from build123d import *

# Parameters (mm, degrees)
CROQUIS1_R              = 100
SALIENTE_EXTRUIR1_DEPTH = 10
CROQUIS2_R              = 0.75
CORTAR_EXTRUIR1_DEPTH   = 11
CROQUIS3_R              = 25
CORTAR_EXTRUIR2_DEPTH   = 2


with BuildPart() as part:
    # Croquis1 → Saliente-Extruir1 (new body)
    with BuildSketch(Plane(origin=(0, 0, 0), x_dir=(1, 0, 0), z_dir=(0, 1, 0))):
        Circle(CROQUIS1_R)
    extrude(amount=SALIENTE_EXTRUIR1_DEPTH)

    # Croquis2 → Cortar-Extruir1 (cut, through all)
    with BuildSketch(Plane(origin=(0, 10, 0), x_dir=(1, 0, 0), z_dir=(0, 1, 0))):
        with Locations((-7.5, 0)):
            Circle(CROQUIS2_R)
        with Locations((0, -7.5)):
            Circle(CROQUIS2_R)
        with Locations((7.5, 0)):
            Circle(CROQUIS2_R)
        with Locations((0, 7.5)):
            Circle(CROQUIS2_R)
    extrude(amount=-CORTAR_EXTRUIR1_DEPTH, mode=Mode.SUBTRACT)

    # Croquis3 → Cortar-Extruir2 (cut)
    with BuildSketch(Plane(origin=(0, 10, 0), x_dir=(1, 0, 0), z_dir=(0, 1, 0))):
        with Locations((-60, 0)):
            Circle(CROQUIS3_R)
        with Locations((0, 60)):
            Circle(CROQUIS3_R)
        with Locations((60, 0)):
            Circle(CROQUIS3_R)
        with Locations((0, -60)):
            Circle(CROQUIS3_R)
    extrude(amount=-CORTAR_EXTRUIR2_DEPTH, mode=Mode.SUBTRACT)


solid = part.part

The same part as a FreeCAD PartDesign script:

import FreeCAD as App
import Part
import Sketcher
from FreeCAD import Vector
Q = App.Units.Quantity

doc = App.newDocument("Part")
params = doc.addObject("Spreadsheet::Sheet", "Params")
for row, (alias, value) in enumerate([
    ("sketch1_diameter", "200 mm"),
    ("pad1_length", "10 mm"),
    ("sketch2_diameter", "1.5 mm"),
    ("sketch3_diameter", "50 mm"),
    ("pocket2_length", "2 mm"),
], start=1):
    params.set(f"A{row}", alias)
    params.set(f"B{row}", "=" + value)
    params.setAlias(f"B{row}", alias)

body = doc.addObject("PartDesign::Body", "Body")

# Sketch on XZ plane
sketch1 = body.newObject("Sketcher::SketchObject", "Sketch")
sketch1.AttachmentSupport = (doc.getObject("XZ_Plane"), [""])
sketch1.MapMode = "FlatFace"
sketch1.addGeometry(Part.Circle(Vector(0, 0, 0), Vector(0, 0, 1), 100), False)
sketch1.addConstraint([
    Sketcher.Constraint("Coincident", 0, 3, -1, 1),
    Sketcher.Constraint("Diameter", 0, Q("200 mm")),
])
sketch1.setExpression("Constraints[1]", "Params.sketch1_diameter")
pad1 = body.newObject("PartDesign::Pad", "Pad")
pad1.Profile = sketch1
pad1.setExpression("Length", "Params.pad1_length")
pad1.Reversed = True

# Sketch on XZ plane
sketch2 = body.newObject("Sketcher::SketchObject", "Sketch001")
sketch2.AttachmentSupport = (doc.getObject("XZ_Plane"), [""])
sketch2.MapMode = "FlatFace"
sketch2.AttachmentOffset = App.Placement(Vector(0, 0, -10), App.Rotation())
sketch2.addGeometry([
    Part.Circle(Vector(-7.5, 0, 0), Vector(0, 0, 1), 0.8),
    Part.Circle(Vector(0, 7.5, 0), Vector(0, 0, 1), 0.8),
    Part.Circle(Vector(7.5, 0, 0), Vector(0, 0, 1), 0.8),
    Part.Circle(Vector(0, -7.5, 0), Vector(0, 0, 1), 0.8),
], False)
sketch2.addConstraint([
    Sketcher.Constraint("Equal", 0, 1),
    Sketcher.Constraint("Equal", 1, 2),
    Sketcher.Constraint("Equal", 2, 3),
    Sketcher.Constraint("Symmetric", 0, 3, 2, 3, -1, 1),
    Sketcher.Constraint("Symmetric", 1, 3, 3, 3, -1, 1),
    Sketcher.Constraint("PointOnObject", 0, 3, -1),
    Sketcher.Constraint("PointOnObject", 1, 3, -2),
    Sketcher.Constraint("Diameter", 0, Q("1.5 mm")),
    Sketcher.Constraint("DistanceX", 0, 3, 2, 3, Q("15 mm")),
    Sketcher.Constraint("DistanceY", 3, 3, 1, 3, Q("15 mm")),
])
sketch2.setExpression("Constraints[7]", "Params.sketch2_diameter")
pocket1 = body.newObject("PartDesign::Pocket", "Pocket")
pocket1.Profile = sketch2
pocket1.Type = "ThroughAll"
pocket1.Reversed = True

# Sketch on XZ plane
sketch3 = body.newObject("Sketcher::SketchObject", "Sketch002")
sketch3.AttachmentSupport = (doc.getObject("XZ_Plane"), [""])
sketch3.MapMode = "FlatFace"
sketch3.AttachmentOffset = App.Placement(Vector(0, 0, -10), App.Rotation())
sketch3.addGeometry([
    Part.Circle(Vector(-60, 0, 0), Vector(0, 0, 1), 25),
    Part.Circle(Vector(0, -60, 0), Vector(0, 0, 1), 25),
    Part.Circle(Vector(60, 0, 0), Vector(0, 0, 1), 25),
    Part.Circle(Vector(0, 60, 0), Vector(0, 0, 1), 25),
], False)
sketch3.addConstraint([
    Sketcher.Constraint("Equal", 0, 1),
    Sketcher.Constraint("Equal", 1, 2),
    Sketcher.Constraint("Equal", 2, 3),
    Sketcher.Constraint("Symmetric", 0, 3, 2, 3, -1, 1),
    Sketcher.Constraint("Symmetric", 1, 3, 3, 3, -1, 1),
    Sketcher.Constraint("PointOnObject", 0, 3, -1),
    Sketcher.Constraint("PointOnObject", 1, 3, -2),
    Sketcher.Constraint("Diameter", 0, Q("50 mm")),
    Sketcher.Constraint("DistanceX", 0, 3, -1, 1, Q("60 mm")),
    Sketcher.Constraint("DistanceY", 1, 3, -1, 1, Q("60 mm")),
])
sketch3.setExpression("Constraints[7]", "Params.sketch3_diameter")
pocket2 = body.newObject("PartDesign::Pocket", "Pocket001")
pocket2.Profile = sketch3
pocket2.setExpression("Length", "Params.pocket2_length")
pocket2.Reversed = True

doc.recompute()
